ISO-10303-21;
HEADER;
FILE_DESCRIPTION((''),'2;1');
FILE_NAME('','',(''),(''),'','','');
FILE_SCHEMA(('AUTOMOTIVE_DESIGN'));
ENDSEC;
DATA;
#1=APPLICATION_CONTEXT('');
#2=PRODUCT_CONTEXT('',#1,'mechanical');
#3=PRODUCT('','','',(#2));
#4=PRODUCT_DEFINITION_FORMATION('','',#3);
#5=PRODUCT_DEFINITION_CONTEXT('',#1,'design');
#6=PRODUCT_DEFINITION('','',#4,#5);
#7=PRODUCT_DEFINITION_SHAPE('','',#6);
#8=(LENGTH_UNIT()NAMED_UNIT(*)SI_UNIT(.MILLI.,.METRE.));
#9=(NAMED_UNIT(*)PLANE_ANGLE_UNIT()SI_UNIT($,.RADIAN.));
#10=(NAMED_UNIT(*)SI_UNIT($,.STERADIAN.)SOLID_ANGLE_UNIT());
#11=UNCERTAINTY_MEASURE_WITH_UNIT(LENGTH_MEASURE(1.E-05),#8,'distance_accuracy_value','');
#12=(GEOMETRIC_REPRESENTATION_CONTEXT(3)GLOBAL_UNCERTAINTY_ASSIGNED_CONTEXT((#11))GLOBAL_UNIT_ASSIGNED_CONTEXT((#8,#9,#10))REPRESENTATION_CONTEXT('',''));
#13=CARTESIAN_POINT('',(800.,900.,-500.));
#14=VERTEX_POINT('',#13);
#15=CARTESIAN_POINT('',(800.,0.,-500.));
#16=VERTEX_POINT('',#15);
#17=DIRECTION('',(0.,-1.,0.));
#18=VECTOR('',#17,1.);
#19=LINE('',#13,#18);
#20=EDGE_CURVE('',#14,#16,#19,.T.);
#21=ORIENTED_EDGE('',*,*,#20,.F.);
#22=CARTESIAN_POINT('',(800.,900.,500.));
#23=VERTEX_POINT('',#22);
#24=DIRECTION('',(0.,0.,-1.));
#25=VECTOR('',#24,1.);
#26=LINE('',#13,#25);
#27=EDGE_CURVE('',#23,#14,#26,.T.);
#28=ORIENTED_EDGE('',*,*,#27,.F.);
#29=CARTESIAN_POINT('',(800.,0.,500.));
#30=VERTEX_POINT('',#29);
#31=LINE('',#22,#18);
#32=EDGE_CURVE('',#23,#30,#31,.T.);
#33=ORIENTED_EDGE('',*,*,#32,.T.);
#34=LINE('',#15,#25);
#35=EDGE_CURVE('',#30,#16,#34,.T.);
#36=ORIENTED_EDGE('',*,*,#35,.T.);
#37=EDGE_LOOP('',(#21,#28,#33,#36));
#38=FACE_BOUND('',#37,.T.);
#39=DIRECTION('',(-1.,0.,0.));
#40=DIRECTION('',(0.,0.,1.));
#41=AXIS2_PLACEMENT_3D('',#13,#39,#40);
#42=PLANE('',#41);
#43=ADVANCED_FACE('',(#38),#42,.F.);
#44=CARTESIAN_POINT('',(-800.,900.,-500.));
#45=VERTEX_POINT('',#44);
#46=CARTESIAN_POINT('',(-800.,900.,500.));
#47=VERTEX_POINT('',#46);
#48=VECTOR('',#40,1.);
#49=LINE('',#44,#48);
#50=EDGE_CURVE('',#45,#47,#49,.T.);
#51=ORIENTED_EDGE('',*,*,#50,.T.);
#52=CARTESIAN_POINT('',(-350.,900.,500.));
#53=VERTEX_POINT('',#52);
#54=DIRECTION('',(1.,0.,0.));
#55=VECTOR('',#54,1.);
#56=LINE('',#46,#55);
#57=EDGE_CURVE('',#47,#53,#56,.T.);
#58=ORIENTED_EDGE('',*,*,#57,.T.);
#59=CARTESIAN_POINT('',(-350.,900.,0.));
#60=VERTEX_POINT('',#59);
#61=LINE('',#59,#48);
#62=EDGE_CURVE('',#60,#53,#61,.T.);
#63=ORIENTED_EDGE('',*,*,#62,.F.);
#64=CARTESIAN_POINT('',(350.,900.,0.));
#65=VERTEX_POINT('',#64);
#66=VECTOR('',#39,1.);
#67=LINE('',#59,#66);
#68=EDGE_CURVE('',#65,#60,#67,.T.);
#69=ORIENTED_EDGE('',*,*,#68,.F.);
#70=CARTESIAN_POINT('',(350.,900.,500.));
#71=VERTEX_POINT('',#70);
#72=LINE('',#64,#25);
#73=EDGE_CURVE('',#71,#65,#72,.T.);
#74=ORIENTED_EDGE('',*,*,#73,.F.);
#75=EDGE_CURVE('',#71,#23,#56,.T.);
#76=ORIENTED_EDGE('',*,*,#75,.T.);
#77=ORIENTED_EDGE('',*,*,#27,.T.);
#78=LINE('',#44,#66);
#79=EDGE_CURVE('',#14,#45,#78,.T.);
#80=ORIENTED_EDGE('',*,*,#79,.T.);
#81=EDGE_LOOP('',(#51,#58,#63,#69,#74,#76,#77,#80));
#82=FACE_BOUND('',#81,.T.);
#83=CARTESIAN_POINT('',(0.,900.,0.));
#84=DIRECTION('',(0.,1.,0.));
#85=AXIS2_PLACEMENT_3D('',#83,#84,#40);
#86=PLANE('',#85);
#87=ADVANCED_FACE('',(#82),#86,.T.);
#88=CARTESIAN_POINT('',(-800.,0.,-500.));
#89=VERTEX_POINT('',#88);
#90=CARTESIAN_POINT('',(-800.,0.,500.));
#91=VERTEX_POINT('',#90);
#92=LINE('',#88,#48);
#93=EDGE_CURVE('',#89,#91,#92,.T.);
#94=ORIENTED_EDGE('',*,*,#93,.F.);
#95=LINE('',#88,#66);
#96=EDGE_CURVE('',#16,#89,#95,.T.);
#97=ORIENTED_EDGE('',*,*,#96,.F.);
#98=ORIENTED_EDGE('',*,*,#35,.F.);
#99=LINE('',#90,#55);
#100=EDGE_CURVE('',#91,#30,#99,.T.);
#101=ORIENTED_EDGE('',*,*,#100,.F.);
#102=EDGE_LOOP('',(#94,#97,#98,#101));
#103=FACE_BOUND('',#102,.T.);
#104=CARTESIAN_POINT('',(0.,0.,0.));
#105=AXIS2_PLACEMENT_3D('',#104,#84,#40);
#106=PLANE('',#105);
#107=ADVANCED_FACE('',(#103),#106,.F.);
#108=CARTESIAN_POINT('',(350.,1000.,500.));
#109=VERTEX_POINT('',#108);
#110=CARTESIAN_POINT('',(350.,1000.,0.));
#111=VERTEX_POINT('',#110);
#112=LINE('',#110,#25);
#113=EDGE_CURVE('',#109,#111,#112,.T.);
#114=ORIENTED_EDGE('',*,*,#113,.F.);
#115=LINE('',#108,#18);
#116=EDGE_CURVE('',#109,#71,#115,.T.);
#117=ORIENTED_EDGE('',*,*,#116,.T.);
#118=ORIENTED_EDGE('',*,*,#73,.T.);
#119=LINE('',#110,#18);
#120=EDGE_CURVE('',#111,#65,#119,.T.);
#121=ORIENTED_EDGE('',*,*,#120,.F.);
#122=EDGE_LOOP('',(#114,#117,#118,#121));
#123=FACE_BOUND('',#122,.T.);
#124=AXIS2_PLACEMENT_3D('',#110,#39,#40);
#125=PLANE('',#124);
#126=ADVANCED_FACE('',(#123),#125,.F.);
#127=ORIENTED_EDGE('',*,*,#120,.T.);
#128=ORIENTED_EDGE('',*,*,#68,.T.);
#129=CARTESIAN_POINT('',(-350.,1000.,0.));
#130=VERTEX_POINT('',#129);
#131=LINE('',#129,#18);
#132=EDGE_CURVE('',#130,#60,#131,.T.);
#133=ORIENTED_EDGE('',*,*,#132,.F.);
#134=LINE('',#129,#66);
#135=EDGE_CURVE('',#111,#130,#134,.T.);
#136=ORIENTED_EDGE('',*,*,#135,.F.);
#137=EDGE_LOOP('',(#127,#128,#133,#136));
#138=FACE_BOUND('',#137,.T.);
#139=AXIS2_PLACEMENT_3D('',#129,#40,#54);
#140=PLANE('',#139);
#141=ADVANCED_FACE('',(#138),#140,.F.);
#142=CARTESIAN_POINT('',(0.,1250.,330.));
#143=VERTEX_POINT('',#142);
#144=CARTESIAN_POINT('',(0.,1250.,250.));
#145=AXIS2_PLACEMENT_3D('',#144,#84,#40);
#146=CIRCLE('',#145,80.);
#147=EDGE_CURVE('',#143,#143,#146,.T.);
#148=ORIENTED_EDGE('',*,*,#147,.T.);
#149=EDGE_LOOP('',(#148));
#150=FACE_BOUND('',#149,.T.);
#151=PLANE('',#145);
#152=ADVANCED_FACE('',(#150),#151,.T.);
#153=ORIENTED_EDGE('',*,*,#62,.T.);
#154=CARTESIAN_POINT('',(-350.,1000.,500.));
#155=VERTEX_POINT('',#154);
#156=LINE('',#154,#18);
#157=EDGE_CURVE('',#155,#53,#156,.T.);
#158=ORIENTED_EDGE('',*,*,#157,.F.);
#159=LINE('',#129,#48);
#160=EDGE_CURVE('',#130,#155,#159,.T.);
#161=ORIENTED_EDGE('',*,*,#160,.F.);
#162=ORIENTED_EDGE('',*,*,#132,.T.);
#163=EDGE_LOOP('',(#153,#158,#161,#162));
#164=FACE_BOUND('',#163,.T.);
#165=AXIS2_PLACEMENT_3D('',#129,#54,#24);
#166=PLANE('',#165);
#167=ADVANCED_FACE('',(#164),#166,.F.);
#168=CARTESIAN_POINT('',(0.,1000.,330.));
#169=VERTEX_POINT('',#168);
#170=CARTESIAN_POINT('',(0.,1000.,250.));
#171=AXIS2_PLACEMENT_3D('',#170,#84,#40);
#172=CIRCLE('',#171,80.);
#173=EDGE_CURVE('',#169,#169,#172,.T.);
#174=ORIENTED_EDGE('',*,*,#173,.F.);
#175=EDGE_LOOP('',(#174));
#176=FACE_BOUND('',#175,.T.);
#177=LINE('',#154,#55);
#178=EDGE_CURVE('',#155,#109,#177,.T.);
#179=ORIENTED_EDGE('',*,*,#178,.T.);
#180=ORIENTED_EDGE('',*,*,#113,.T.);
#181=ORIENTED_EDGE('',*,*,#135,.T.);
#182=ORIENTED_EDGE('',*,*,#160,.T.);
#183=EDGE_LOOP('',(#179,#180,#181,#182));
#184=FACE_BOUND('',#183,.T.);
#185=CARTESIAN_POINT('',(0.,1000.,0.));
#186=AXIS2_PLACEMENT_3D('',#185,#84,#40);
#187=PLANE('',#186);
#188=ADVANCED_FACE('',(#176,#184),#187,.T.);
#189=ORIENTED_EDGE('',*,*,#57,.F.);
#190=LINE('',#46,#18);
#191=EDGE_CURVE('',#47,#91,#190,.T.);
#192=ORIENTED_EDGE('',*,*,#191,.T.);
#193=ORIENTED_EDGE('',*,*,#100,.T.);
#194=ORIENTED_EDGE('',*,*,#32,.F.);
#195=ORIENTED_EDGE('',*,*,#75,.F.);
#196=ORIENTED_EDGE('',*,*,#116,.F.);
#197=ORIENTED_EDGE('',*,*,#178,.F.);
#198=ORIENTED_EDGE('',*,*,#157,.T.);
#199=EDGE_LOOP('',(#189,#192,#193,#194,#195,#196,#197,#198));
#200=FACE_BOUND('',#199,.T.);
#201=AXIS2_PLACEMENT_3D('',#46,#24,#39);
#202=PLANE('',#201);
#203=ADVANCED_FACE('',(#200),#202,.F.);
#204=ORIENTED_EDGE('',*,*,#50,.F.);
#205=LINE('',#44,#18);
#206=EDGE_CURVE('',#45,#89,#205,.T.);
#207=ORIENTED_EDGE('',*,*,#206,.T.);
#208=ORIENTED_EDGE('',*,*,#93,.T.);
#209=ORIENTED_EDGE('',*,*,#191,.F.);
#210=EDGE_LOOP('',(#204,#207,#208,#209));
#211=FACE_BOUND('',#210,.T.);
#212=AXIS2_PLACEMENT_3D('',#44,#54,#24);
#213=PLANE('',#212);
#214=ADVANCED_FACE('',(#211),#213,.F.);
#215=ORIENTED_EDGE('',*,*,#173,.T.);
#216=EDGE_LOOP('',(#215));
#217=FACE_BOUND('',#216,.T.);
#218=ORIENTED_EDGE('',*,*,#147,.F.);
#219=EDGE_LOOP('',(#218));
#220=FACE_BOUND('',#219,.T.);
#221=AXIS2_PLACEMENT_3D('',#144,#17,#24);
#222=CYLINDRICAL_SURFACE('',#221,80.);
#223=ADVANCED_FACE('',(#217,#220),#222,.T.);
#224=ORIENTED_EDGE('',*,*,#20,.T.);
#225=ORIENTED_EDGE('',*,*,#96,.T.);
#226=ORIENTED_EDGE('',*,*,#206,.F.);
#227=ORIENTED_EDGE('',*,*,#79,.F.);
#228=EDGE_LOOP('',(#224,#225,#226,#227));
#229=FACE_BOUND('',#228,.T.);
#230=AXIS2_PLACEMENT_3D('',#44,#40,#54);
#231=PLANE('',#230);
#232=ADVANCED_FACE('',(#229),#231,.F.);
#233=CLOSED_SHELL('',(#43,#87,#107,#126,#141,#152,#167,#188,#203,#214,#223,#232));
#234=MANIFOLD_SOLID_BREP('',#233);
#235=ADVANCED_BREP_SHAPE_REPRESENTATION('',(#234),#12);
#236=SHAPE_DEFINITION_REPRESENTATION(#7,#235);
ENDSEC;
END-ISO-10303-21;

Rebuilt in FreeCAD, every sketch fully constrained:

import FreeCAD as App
import Part
import Sketcher
Q = App.Units.Quantity


def add_polygon(sketch, points):
    """Adds a closed chain of lines whose ends are joined by coincident constraints."""
    first, n = sketch.GeometryCount, len(points)
    for a, b in zip(points, points[1:] + points[:1]):
        sketch.addGeometry(Part.LineSegment(App.Vector(*a, 0), App.Vector(*b, 0)), False)
    for i in range(n):
        sketch.addConstraint(Sketcher.Constraint("Coincident", first + i, 2, first + (i + 1) % n, 1))

doc = App.newDocument("Part")
body = doc.addObject("PartDesign::Body", "Body")

# Sketch on XZ plane
sketch1 = body.newObject("Sketcher::SketchObject", "Sketch")
sketch1.AttachmentSupport = (doc.getObject("XZ_Plane"), [""])
sketch1.MapMode = "FlatFace"
add_polygon(sketch1, [(-800, -500), (-800, 500), (800, 500), (800, -500)])  # lines 0-3
sketch1.addConstraint([
    Sketcher.Constraint("Vertical", 0),
    Sketcher.Constraint("Horizontal", 1),
    Sketcher.Constraint("Vertical", 2),
    Sketcher.Constraint("Horizontal", 3),
    Sketcher.Constraint("Symmetric", 0, 2, 2, 2, -1, 1),
    Sketcher.Constraint("DistanceX", 1, 1, 1, 2, Q("1600 mm")),
    Sketcher.Constraint("DistanceY", 0, 1, 0, 2, Q("1000 mm")),
])
pad1 = body.newObject("PartDesign::Pad", "Pad")
pad1.Profile = sketch1
pad1.Length = 900
pad1.Reversed = True

# Sketch on XZ plane
sketch2 = body.newObject("Sketcher::SketchObject", "Sketch001")
sketch2.AttachmentSupport = (doc.getObject("XZ_Plane"), [""])
sketch2.MapMode = "FlatFace"
sketch2.AttachmentOffset = App.Placement(App.Vector(0, 0, -900), App.Rotation())
add_polygon(sketch2, [(-350, 0), (-350, 500), (350, 500), (350, 0)])  # lines 0-3
sketch2.addConstraint([
    Sketcher.Constraint("Vertical", 0),
    Sketcher.Constraint("Horizontal", 1),
    Sketcher.Constraint("Vertical", 2),
    Sketcher.Constraint("Horizontal", 3),
    Sketcher.Constraint("Symmetric", 2, 2, 3, 2, -1, 1),
    Sketcher.Constraint("DistanceX", 1, 1, 1, 2, Q("700 mm")),
    Sketcher.Constraint("DistanceY", 0, 1, 0, 2, Q("500 mm")),
])
pad2 = body.newObject("PartDesign::Pad", "Pad001")
pad2.Profile = sketch2
pad2.Length = 100
pad2.Reversed = True

# Sketch on XZ plane
sketch3 = body.newObject("Sketcher::SketchObject", "Sketch002")
sketch3.AttachmentSupport = (doc.getObject("XZ_Plane"), [""])
sketch3.MapMode = "FlatFace"
sketch3.AttachmentOffset = App.Placement(App.Vector(0, 0, -1000), App.Rotation())
sketch3.addGeometry(Part.Circle(App.Vector(0, 250, 0), App.Vector(0, 0, 1), 80), False)
sketch3.addConstraint([
    Sketcher.Constraint("PointOnObject", 0, 3, -2),
    Sketcher.Constraint("Diameter", 0, Q("160 mm")),
    Sketcher.Constraint("DistanceY", -1, 1, 0, 3, Q("250 mm")),
])
pad3 = body.newObject("PartDesign::Pad", "Pad002")
pad3.Profile = sketch3
pad3.Length = 250
pad3.Reversed = True

doc.recompute()
